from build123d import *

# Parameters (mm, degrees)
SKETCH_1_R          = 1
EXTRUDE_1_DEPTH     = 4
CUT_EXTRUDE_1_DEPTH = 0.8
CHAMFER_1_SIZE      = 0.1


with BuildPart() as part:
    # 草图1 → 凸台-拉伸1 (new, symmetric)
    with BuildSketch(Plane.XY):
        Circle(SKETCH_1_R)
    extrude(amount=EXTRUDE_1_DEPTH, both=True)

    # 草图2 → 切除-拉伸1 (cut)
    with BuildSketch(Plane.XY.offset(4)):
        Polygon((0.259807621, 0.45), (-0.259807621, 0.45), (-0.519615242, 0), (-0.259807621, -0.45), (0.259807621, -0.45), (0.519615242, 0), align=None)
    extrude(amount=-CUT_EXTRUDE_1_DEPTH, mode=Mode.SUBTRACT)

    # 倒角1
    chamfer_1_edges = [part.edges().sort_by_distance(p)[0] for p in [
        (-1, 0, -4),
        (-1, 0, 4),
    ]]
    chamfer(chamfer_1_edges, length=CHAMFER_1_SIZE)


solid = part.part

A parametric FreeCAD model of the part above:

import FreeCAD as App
import Part
import Sketcher
Q = App.Units.Quantity


def edges_at(feature, points):
    """Names of the edges that pass closest to the given points."""
    edges = feature.Shape.Edges
    near = lambda p: min(range(len(edges)), key=lambda i: edges[i].distToShape(Part.Vertex(*p))[0])
    return sorted({f"Edge{near(p) + 1}" for p in points})


def add_polygon(sketch, points):
    """Adds a closed chain of lines whose ends are joined by coincident constraints."""
    first, n = sketch.GeometryCount, len(points)
    for a, b in zip(points, points[1:] + points[:1]):
        sketch.addGeometry(Part.LineSegment(App.Vector(*a, 0), App.Vector(*b, 0)), False)
    for i in range(n):
        sketch.addConstraint(Sketcher.Constraint("Coincident", first + i, 2, first + (i + 1) % n, 1))

doc = App.newDocument("Part")
params = doc.addObject("Spreadsheet::Sheet", "Params")
for row, (alias, value) in enumerate([
    ("sketch1_diameter", "2 mm"),
    ("pad1_length", "8 mm"),
    ("pocket1_length", "0.8 mm"),
    ("chamfer_size", "0.1 mm"),
], start=1):
    params.set(f"A{row}", alias)
    params.set(f"B{row}", "=" + value)
    params.setAlias(f"B{row}", alias)

body = doc.addObject("PartDesign::Body", "Body")

sketch1 = body.newObject("Sketcher::SketchObject", "Sketch")
sketch1.AttachmentSupport = (doc.getObject("XY_Plane"), [""])
sketch1.MapMode = "FlatFace"
sketch1.addGeometry(Part.Circle(App.Vector(0, 0, 0), App.Vector(0, 0, 1), 1), False)
sketch1.addConstraint(Sketcher.Constraint("Coincident", 0, 3, -1, 1))
sketch1.addConstraint(Sketcher.Constraint("Diameter", 0, Q("2 mm")))
sketch1.setExpression("Constraints[1]", "Params.sketch1_diameter")
pad1 = body.newObject("PartDesign::Pad", "Pad")
pad1.Profile = sketch1
pad1.setExpression("Length", "Params.pad1_length")
pad1.Midplane = True

sketch2 = body.newObject("Sketcher::SketchObject", "Sketch001")
sketch2.AttachmentSupport = (doc.getObject("XY_Plane"), [""])
sketch2.MapMode = "FlatFace"
sketch2.AttachmentOffset = App.Placement(App.Vector(0, 0, 4), App.Rotation())
add_polygon(sketch2, [(0.3, 0.5), (-0.3, 0.5), (-0.5, 0), (-0.3, -0.5), (0.3, -0.5), (0.5, 0)])
sketch2.addConstraint(Sketcher.Constraint("Horizontal", 0))
sketch2.addConstraint(Sketcher.Constraint("Horizontal", 3))
sketch2.addConstraint(Sketcher.Constraint("Symmetric", 0, 2, 3, 2, -1, 1))
sketch2.addConstraint(Sketcher.Constraint("Symmetric", 1, 2, 4, 2, -1, 1))
sketch2.addConstraint(Sketcher.Constraint("PointOnObject", 1, 2, -1))
sketch2.addConstraint(Sketcher.Constraint("Parallel", 2, 5))
sketch2.addConstraint(Sketcher.Constraint("Vertical", 0, 2, 2, 2))
sketch2.addConstraint(Sketcher.Constraint("Angle", 1, Q("-120 deg")))
sketch2.addConstraint(Sketcher.Constraint("DistanceY", 2, 2, 0, 2, Q("0.9 mm")))
sketch2.addConstraint(Sketcher.Constraint("DistanceX", 0, 2, 0, 1, Q("0.519615 mm")))
pocket1 = body.newObject("PartDesign::Pocket", "Pocket")
pocket1.Profile = sketch2
pocket1.setExpression("Length", "Params.pocket1_length")
doc.recompute()

chamfer = body.newObject("PartDesign::Chamfer", "Chamfer")
chamfer.Base = (pocket1, edges_at(pocket1, [(-1, 0, -4), (-1, 0, 4)]))
chamfer.setExpression("Size", "Params.chamfer_size")

doc.recompute()
